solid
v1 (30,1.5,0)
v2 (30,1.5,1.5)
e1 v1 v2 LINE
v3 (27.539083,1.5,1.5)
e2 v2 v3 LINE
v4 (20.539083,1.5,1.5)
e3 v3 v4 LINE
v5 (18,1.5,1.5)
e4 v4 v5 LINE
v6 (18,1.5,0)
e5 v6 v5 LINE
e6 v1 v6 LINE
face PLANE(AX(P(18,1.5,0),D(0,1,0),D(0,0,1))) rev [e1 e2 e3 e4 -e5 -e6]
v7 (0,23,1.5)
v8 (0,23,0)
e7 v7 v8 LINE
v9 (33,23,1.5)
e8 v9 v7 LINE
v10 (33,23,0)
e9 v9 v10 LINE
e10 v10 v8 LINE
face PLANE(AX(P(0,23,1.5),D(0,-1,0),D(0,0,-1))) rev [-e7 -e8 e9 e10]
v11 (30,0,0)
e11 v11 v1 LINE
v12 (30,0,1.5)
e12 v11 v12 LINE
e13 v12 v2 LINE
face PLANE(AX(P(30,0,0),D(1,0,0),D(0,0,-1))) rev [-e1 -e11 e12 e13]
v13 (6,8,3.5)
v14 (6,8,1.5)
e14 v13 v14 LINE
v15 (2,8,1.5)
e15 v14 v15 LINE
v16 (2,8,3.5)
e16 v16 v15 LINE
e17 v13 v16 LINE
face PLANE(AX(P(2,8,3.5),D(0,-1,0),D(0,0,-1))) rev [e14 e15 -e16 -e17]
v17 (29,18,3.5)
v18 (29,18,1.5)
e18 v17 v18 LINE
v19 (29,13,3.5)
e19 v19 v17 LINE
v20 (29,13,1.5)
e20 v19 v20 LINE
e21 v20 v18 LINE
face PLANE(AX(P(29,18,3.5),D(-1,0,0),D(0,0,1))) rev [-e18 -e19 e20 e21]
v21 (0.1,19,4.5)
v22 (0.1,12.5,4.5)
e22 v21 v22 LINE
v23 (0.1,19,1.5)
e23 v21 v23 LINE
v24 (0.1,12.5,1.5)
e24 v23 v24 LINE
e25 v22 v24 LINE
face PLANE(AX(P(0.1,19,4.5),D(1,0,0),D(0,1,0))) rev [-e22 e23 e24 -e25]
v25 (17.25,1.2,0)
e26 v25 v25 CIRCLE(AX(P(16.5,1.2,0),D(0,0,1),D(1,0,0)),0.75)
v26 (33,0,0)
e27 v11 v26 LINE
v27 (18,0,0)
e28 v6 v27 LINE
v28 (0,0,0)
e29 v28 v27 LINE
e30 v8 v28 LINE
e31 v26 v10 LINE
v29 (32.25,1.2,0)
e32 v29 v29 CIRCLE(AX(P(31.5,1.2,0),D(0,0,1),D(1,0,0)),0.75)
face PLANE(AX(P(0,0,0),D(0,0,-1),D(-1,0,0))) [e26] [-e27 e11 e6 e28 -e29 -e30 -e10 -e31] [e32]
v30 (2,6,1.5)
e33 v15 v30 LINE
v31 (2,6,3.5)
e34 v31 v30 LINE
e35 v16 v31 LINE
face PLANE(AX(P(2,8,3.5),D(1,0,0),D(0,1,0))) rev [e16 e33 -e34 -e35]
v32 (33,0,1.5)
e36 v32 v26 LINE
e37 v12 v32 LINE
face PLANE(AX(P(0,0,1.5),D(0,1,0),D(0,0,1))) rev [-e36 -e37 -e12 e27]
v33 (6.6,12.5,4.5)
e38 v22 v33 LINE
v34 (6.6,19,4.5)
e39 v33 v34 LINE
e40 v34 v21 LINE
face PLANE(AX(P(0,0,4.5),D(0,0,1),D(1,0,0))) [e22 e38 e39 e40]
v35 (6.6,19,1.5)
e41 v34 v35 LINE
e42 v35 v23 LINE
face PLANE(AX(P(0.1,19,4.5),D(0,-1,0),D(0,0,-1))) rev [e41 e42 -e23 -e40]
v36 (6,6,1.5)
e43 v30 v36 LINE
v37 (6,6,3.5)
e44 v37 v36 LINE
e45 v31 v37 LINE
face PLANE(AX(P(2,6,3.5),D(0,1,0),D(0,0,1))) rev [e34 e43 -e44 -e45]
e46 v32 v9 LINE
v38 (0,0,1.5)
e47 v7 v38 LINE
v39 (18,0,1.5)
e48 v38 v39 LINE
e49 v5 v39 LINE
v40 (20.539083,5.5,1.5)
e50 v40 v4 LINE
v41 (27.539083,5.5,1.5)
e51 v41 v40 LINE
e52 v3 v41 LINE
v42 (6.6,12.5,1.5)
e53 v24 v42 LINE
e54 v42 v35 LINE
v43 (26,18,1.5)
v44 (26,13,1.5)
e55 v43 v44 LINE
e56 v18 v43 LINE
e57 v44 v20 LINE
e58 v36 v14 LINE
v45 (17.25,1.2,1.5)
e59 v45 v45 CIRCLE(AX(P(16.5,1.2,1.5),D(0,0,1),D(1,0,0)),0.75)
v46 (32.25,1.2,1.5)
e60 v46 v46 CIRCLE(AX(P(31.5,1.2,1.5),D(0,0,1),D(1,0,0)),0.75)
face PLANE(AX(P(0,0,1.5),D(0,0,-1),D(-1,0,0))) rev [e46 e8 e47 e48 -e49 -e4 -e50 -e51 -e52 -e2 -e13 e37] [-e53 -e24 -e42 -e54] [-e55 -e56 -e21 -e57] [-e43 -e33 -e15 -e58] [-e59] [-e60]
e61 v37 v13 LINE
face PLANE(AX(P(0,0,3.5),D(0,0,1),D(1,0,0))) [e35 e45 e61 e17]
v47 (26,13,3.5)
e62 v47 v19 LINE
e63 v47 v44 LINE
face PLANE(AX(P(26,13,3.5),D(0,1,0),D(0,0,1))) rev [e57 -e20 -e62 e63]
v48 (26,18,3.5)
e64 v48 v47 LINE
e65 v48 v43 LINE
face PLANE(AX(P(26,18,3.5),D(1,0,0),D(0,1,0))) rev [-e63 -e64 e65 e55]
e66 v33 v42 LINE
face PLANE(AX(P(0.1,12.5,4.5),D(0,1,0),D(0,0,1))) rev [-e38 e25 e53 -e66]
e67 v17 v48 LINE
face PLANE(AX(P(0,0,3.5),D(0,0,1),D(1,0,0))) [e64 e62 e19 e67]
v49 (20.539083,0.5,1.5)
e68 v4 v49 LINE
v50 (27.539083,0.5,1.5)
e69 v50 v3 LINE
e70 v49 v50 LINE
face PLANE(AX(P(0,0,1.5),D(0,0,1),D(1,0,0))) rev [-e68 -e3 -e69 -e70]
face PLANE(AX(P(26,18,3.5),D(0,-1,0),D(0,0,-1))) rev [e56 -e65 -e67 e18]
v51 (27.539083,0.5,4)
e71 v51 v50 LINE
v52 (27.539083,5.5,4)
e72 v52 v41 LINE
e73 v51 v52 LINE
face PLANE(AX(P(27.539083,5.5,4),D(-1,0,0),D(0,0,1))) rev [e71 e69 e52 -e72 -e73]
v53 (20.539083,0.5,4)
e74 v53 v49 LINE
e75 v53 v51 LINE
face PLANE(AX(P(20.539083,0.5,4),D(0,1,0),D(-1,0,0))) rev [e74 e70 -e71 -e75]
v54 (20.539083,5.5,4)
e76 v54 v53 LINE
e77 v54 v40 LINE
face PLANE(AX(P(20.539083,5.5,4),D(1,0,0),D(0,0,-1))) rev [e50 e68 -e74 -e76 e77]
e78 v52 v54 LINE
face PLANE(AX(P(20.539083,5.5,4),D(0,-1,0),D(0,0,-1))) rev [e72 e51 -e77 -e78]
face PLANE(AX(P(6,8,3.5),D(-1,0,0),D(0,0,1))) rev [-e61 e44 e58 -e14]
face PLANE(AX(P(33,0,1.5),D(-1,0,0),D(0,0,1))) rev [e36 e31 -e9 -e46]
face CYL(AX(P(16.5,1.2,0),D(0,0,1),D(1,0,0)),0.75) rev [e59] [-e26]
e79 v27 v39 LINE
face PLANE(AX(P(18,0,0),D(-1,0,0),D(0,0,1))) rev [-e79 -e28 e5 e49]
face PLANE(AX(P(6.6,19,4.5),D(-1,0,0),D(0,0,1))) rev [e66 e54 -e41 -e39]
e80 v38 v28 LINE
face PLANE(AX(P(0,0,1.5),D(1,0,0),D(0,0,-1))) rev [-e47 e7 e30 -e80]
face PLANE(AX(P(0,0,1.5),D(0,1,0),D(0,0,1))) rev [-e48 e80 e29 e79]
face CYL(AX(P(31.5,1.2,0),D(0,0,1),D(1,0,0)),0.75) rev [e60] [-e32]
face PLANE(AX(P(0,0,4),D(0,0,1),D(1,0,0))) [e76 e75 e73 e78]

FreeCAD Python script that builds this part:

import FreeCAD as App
import Part
import Sketcher

V = App.Vector


def add_polygon(sketch, points):
    """Adds a closed chain of lines whose ends are joined by coincident constraints."""
    first, n = sketch.GeometryCount, len(points)
    for a, b in zip(points, points[1:] + points[:1]):
        sketch.addGeometry(Part.LineSegment(App.Vector(*a, 0), App.Vector(*b, 0)), False)
    for i in range(n):
        sketch.addConstraint(Sketcher.Constraint("Coincident", first + i, 2, first + (i + 1) % n, 1))

doc = App.newDocument("Part")
params = doc.addObject("Spreadsheet::Sheet", "Params")
for row, (alias, value) in enumerate([
    ("sketch1_width", "33 mm"),
    ("sketch1_height", "23 mm"),
    ("pad1_length", "1.5 mm"),
    ("sketch2_width", "12 mm"),
    ("sketch2_height", "1.5 mm"),
    ("sketch3_diameter", "1.5 mm"),
    ("sketch4_width", "4 mm"),
    ("sketch4_height", "2 mm"),
    ("pad2_length", "2 mm"),
    ("sketch5_width", "3 mm"),
    ("sketch5_height", "5 mm"),
    ("pad3_length", "2 mm"),
    ("sketch6_width", "6.5 mm"),
    ("pad4_length", "3 mm"),
    ("sketch7_width", "7 mm"),
    ("sketch7_height", "5 mm"),
    ("pad5_length", "2.5 mm"),
], start=1):
    params.set(f"A{row}", alias)
    params.set(f"B{row}", "=" + value)
    params.setAlias(f"B{row}", alias)

body = doc.addObject("PartDesign::Body", "Body")

# Sketch on XY plane
sketch1 = doc.addObject("Sketcher::SketchObject", "Sketch")
body.addObject(sketch1)
sketch1.AttachmentSupport = (doc.XY_Plane, [""])
sketch1.MapMode = "FlatFace"
add_polygon(sketch1, [(0, 23), (0, 0), (33, 0), (33, 23)])  # lines 0-3
sketch1.addConstraint([
    Sketcher.Constraint("Vertical", 0),
    Sketcher.Constraint("Horizontal", 1),
    Sketcher.Constraint("Vertical", 2),
    Sketcher.Constraint("Horizontal", 3),
    Sketcher.Constraint("Coincident", 0, 2, -1, 1),
    Sketcher.Constraint("DistanceX", 1, 1, 1, 2, 33.0),
    Sketcher.Constraint("DistanceY", 0, 2, 0, 1, 23.0),
])
sketch1.setExpression("Constraints[9]", "Params.sketch1_width")
sketch1.setExpression("Constraints[10]", "Params.sketch1_height")
pad1 = doc.addObject("PartDesign::Pad", "Pad")
body.addObject(pad1)
pad1.Profile = sketch1
pad1.setExpression("Length", "Params.pad1_length")

# Sketch on XY plane
sketch2 = doc.addObject("Sketcher::SketchObject", "Sketch001")
body.addObject(sketch2)
sketch2.AttachmentSupport = (doc.XY_Plane, [""])
sketch2.MapMode = "FlatFace"
sketch2.AttachmentOffset = App.Placement(V(0, 0, 1.5), App.Rotation())
add_polygon(sketch2, [(18, 1.5), (18, 0), (30, 0), (30, 1.5)])  # lines 0-3
sketch2.addConstraint([
    Sketcher.Constraint("Vertical", 0),
    Sketcher.Constraint("Horizontal", 1),
    Sketcher.Constraint("Vertical", 2),
    Sketcher.Constraint("Horizontal", 3),
    Sketcher.Constraint("PointOnObject", 0, 2, -1),
    Sketcher.Constraint("DistanceX", 1, 1, 1, 2, 12.0),
    Sketcher.Constraint("DistanceY", 0, 2, 0, 1, 1.5),
    Sketcher.Constraint("DistanceX", -1, 1, 0, 2, 18.0),
])
sketch2.setExpression("Constraints[9]", "Params.sketch2_width")
sketch2.setExpression("Constraints[10]", "Params.sketch2_height")
pocket1 = doc.addObject("PartDesign::Pocket", "Pocket")
body.addObject(pocket1)
pocket1.Profile = sketch2
pocket1.Type = "ThroughAll"

# Sketch on XY plane
sketch3 = doc.addObject("Sketcher::SketchObject", "Sketch002")
body.addObject(sketch3)
sketch3.AttachmentSupport = (doc.XY_Plane, [""])
sketch3.MapMode = "FlatFace"
sketch3.AttachmentOffset = App.Placement(V(0, 0, 1.5), App.Rotation())
sketch3.addGeometry([
    Part.Circle(V(31.5, 1.2, 0), V(0, 0, 1), 0.75),
    Part.Circle(V(16.5, 1.2, 0), V(0, 0, 1), 0.75),
], False)
sketch3.addConstraint([
    Sketcher.Constraint("Equal", 0, 1),
    Sketcher.Constraint("Horizontal", 0, 3, 1, 3),
    Sketcher.Constraint("Diameter", 0, 1.5),
    Sketcher.Constraint("DistanceX", 1, 3, 0, 3, 15.0),
    Sketcher.Constraint("DistanceX", -1, 1, 0, 3, 31.5),
    Sketcher.Constraint("DistanceY", -1, 1, 0, 3, 1.2),
])
sketch3.setExpression("Constraints[2]", "Params.sketch3_diameter")
pocket2 = doc.addObject("PartDesign::Pocket", "Pocket001")
body.addObject(pocket2)
pocket2.Profile = sketch3
pocket2.Type = "ThroughAll"

# Sketch on XY plane
sketch4 = doc.addObject("Sketcher::SketchObject", "Sketch003")
body.addObject(sketch4)
sketch4.AttachmentSupport = (doc.XY_Plane, [""])
sketch4.MapMode = "FlatFace"
sketch4.AttachmentOffset = App.Placement(V(0, 0, 1.5), App.Rotation())
add_polygon(sketch4, [(2, 8), (2, 6), (6, 6), (6, 8)])  # lines 0-3
sketch4.addConstraint([
    Sketcher.Constraint("Vertical", 0),
    Sketcher.Constraint("Horizontal", 1),
    Sketcher.Constraint("Vertical", 2),
    Sketcher.Constraint("Horizontal", 3),
    Sketcher.Constraint("DistanceX", 1, 1, 1, 2, 4.0),
    Sketcher.Constraint("DistanceY", 0, 2, 0, 1, 2.0),
    Sketcher.Constraint("DistanceX", -1, 1, 0, 2, 2.0),
    Sketcher.Constraint("DistanceY", -1, 1, 0, 2, 6.0),
])
sketch4.setExpression("Constraints[8]", "Params.sketch4_width")
sketch4.setExpression("Constraints[9]", "Params.sketch4_height")
pad2 = doc.addObject("PartDesign::Pad", "Pad001")
body.addObject(pad2)
pad2.Profile = sketch4
pad2.setExpression("Length", "Params.pad2_length")

# Sketch on XY plane
sketch5 = doc.addObject("Sketcher::SketchObject", "Sketch004")
body.addObject(sketch5)
sketch5.AttachmentSupport = (doc.XY_Plane, [""])
sketch5.MapMode = "FlatFace"
sketch5.AttachmentOffset = App.Placement(V(0, 0, 1.5), App.Rotation())
add_polygon(sketch5, [(26, 18), (26, 13), (29, 13), (29, 18)])  # lines 0-3
sketch5.addConstraint([
    Sketcher.Constraint("Vertical", 0),
    Sketcher.Constraint("Horizontal", 1),
    Sketcher.Constraint("Vertical", 2),
    Sketcher.Constraint("Horizontal", 3),
    Sketcher.Constraint("DistanceX", 1, 1, 1, 2, 3.0),
    Sketcher.Constraint("DistanceY", 0, 2, 0, 1, 5.0),
    Sketcher.Constraint("DistanceX", -1, 1, 0, 2, 26.0),
    Sketcher.Constraint("DistanceY", -1, 1, 0, 2, 13.0),
])
sketch5.setExpression("Constraints[8]", "Params.sketch5_width")
sketch5.setExpression("Constraints[9]", "Params.sketch5_height")
pad3 = doc.addObject("PartDesign::Pad", "Pad002")
body.addObject(pad3)
pad3.Profile = sketch5
pad3.setExpression("Length", "Params.pad3_length")

# Sketch on XY plane
sketch6 = doc.addObject("Sketcher::SketchObject", "Sketch005")
body.addObject(sketch6)
sketch6.AttachmentSupport = (doc.XY_Plane, [""])
sketch6.MapMode = "FlatFace"
sketch6.AttachmentOffset = App.Placement(V(0, 0, 1.5), App.Rotation())
add_polygon(sketch6, [(0.1, 19), (0.1, 12.5), (6.6, 12.5), (6.6, 19)])  # lines 0-3
sketch6.addConstraint([
    Sketcher.Constraint("Vertical", 0),
    Sketcher.Constraint("Horizontal", 1),
    Sketcher.Constraint("Vertical", 2),
    Sketcher.Constraint("Horizontal", 3),
    Sketcher.Constraint("Equal", 3, 0),
    Sketcher.Constraint("DistanceX", 1, 1, 1, 2, 6.5),
    Sketcher.Constraint("DistanceY", -1, 1, 2, 2, 19.0),
    Sketcher.Constraint("DistanceX", -1, 1, 0, 2, 0.1),
])
sketch6.setExpression("Constraints[9]", "Params.sketch6_width")
pad4 = doc.addObject("PartDesign::Pad", "Pad003")
body.addObject(pad4)
pad4.Profile = sketch6
pad4.setExpression("Length", "Params.pad4_length")

# Sketch on XY plane
sketch7 = doc.addObject("Sketcher::SketchObject", "Sketch006")
body.addObject(sketch7)
sketch7.AttachmentSupport = (doc.XY_Plane, [""])
sketch7.MapMode = "FlatFace"
sketch7.AttachmentOffset = App.Placement(V(0, 0, 1.5), App.Rotation())
add_polygon(sketch7, [(20.539083, 5.5), (20.539083, 0.5), (27.539083, 0.5), (27.539083, 5.5)])  # lines 0-3
sketch7.addConstraint([
    Sketcher.Constraint("Vertical", 0),
    Sketcher.Constraint("Horizontal", 1),
    Sketcher.Constraint("Vertical", 2),
    Sketcher.Constraint("Horizontal", 3),
    Sketcher.Constraint("DistanceX", 1, 1, 1, 2, 7.0),
    Sketcher.Constraint("DistanceY", 0, 2, 0, 1, 5.0),
    Sketcher.Constraint("DistanceY", -1, 1, 0, 2, 0.5),
    Sketcher.Constraint("DistanceX", -1, 1, 0, 2, 20.539083),
])
sketch7.setExpression("Constraints[8]", "Params.sketch7_width")
sketch7.setExpression("Constraints[9]", "Params.sketch7_height")
pad5 = doc.addObject("PartDesign::Pad", "Pad004")
body.addObject(pad5)
pad5.Profile = sketch7
pad5.setExpression("Length", "Params.pad5_length")

doc.recompute()
